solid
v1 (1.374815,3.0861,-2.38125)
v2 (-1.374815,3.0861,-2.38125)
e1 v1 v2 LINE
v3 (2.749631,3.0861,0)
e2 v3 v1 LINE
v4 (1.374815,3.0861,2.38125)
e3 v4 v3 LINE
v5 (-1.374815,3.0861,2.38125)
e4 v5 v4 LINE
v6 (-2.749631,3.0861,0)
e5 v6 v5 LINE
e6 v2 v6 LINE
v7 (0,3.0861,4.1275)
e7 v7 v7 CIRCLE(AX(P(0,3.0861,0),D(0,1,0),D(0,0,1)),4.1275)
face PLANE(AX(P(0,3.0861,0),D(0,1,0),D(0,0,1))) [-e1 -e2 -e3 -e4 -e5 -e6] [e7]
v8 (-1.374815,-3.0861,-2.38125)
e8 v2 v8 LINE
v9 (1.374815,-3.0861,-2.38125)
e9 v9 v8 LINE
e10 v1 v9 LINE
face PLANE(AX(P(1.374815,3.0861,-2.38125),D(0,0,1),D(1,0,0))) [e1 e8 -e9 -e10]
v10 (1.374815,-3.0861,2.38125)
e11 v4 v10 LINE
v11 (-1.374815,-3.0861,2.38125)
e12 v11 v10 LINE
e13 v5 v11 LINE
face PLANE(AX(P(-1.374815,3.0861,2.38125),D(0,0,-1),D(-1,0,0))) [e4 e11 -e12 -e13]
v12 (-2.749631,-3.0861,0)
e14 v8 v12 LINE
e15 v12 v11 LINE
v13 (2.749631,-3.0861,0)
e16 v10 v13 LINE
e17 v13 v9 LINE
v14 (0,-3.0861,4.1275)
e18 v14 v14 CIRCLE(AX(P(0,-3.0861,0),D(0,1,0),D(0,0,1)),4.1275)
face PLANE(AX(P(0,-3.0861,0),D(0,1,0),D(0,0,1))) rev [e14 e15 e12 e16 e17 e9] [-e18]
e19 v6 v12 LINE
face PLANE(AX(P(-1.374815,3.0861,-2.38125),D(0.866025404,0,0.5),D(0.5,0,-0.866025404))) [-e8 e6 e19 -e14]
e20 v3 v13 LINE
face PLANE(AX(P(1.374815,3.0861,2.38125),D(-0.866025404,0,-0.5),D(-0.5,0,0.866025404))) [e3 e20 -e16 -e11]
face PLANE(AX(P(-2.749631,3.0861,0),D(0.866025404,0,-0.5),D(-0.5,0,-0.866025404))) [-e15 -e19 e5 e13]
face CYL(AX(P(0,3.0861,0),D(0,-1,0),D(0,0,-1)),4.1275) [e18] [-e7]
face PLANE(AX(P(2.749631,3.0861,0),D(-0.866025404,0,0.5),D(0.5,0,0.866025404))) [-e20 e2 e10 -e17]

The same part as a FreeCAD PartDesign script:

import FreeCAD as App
import Part
import Sketcher
from FreeCAD import Vector
Q = App.Units.Quantity

doc = App.newDocument("Part")
body = doc.addObject("PartDesign::Body", "Body")

# Sketch on XZ plane
sketch1 = doc.addObject("Sketcher::SketchObject", "Sketch")
body.addObject(sketch1)
sketch1.AttachmentSupport = (doc.XZ_Plane, [""])
sketch1.MapMode = "FlatFace"
sketch1.addGeometry([
    Part.Circle(Vector(0, 0, 0), Vector(0, 0, 1), 4.1),  # 0
    Part.LineSegment(Vector(2.7, 0, 0), Vector(1.4, 2.4, 0)),  # 1
    Part.LineSegment(Vector(1.4, 2.4, 0), Vector(-1.4, 2.4, 0)),  # 2
    Part.LineSegment(Vector(-1.4, 2.4, 0), Vector(-2.7, 0, 0)),  # 3
    Part.LineSegment(Vector(-2.7, 0, 0), Vector(-1.4, -2.4, 0)),  # 4
    Part.LineSegment(Vector(-1.4, -2.4, 0), Vector(1.4, -2.4, 0)),  # 5
    Part.LineSegment(Vector(1.4, -2.4, 0), Vector(2.7, 0, 0)),  # 6
], False)
sketch1.addConstraint([
    Sketcher.Constraint("Coincident", 1, 2, 2, 1),
    Sketcher.Constraint("Coincident", 2, 2, 3, 1),
    Sketcher.Constraint("Coincident", 3, 2, 4, 1),
    Sketcher.Constraint("Coincident", 4, 2, 5, 1),
    Sketcher.Constraint("Coincident", 5, 2, 6, 1),
    Sketcher.Constraint("Coincident", 6, 2, 1, 1),
    Sketcher.Constraint("Horizontal", 2),
    Sketcher.Constraint("Horizontal", 5),
    Sketcher.Constraint("Coincident", 0, 3, -1, 1),
    Sketcher.Constraint("Symmetric", 1, 2, 4, 2, -1, 1),
    Sketcher.Constraint("Symmetric", 3, 2, 6, 2, -1, 1),
    Sketcher.Constraint("PointOnObject", 3, 2, -1),
    Sketcher.Constraint("Parallel", 3, 6),
    Sketcher.Constraint("Vertical", 2, 2, 4, 2),
    Sketcher.Constraint("Diameter", 0, Q("0.325 in")),
    Sketcher.Constraint("Angle", 1, Q("120 deg")),
    Sketcher.Constraint("DistanceY", -1, 1, 1, 2, Q("0.09375 in")),
    Sketcher.Constraint("DistanceX", 2, 2, 2, 1, Q("2.749631 mm")),
])
pad1 = doc.addObject("PartDesign::Pad", "Pad")
body.addObject(pad1)
pad1.Profile = sketch1
pad1.Length = Q("0.243 in")
pad1.Midplane = True

doc.recompute()
